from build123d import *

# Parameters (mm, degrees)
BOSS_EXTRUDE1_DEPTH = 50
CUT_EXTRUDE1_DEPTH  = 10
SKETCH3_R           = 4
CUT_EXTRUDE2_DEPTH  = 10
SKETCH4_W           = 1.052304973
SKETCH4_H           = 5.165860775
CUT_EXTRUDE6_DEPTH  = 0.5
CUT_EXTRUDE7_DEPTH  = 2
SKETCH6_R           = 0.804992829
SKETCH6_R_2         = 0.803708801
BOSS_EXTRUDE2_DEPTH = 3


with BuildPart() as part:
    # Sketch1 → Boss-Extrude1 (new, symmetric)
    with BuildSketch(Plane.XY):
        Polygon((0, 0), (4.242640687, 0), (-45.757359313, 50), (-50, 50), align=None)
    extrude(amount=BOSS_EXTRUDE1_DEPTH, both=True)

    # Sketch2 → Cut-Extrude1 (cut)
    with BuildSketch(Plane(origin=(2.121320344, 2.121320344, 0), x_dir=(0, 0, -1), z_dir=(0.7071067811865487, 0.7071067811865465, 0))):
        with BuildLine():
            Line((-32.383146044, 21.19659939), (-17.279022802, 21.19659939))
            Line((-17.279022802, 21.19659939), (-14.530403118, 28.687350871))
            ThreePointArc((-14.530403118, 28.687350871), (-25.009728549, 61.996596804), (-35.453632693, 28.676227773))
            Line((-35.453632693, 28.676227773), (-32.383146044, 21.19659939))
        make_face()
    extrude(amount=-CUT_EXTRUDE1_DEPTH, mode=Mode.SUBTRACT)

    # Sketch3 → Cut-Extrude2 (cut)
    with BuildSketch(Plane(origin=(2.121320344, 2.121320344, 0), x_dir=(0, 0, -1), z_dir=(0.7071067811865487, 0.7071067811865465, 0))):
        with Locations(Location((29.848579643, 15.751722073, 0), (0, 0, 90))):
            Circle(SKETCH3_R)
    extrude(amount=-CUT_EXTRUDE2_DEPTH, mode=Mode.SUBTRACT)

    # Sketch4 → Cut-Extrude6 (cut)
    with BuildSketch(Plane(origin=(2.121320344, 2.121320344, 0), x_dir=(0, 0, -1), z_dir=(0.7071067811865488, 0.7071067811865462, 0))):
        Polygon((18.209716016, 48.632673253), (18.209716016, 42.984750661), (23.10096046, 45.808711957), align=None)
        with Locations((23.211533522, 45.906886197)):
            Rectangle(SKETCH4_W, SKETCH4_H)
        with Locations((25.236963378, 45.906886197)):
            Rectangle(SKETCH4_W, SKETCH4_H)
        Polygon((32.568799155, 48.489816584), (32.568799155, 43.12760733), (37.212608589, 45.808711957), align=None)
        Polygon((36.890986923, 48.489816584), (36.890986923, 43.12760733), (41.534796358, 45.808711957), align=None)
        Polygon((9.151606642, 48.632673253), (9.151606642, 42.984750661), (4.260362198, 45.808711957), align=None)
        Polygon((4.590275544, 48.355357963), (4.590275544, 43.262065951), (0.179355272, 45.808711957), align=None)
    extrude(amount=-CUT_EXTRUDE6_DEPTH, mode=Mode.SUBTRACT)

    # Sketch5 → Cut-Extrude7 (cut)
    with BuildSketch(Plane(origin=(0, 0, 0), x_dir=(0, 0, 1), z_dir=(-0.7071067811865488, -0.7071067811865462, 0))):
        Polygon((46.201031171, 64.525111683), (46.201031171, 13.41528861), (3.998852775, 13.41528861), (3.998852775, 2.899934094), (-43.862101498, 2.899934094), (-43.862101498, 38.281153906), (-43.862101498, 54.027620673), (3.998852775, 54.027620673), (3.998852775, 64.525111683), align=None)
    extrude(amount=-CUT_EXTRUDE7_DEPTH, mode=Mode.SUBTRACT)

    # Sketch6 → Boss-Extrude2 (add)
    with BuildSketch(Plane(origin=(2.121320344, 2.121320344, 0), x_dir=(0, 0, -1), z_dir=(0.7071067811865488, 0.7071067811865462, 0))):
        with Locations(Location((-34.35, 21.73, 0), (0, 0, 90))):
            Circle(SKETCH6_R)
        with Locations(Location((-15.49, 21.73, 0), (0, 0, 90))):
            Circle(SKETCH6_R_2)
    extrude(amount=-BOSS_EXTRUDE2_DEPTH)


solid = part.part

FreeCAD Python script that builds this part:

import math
import FreeCAD as App
import Part
import Sketcher
from FreeCAD import Vector
Q = App.Units.Quantity

doc = App.newDocument("Part")
body = doc.addObject("PartDesign::Body", "Body")

sketch1 = doc.addObject("Sketcher::SketchObject", "Sketch")
body.addObject(sketch1)
sketch1.AttachmentSupport = (doc.XY_Plane, [""])
sketch1.MapMode = "FlatFace"
sketch1.addGeometry([
    Part.LineSegment(Vector(0, 0, 0), Vector(4.242641, 0, 0)),
    Part.LineSegment(Vector(4.242641, 0, 0), Vector(-45.757359, 50, 0)),
    Part.LineSegment(Vector(-45.757359, 50, 0), Vector(-50, 50, 0)),
    Part.LineSegment(Vector(-50, 50, 0), Vector(0, 0, 0)),
], False)
sketch1.addConstraint([
    Sketcher.Constraint("Coincident", 0, 2, 1, 1),
    Sketcher.Constraint("Coincident", 1, 2, 2, 1),
    Sketcher.Constraint("Coincident", 2, 2, 3, 1),
    Sketcher.Constraint("Coincident", 3, 2, 0, 1),
    Sketcher.Constraint("Horizontal", 0),
    Sketcher.Constraint("Horizontal", 2),
    Sketcher.Constraint("Coincident", 3, 2, -1, 1),
    Sketcher.Constraint("Parallel", 1, 3),
    Sketcher.Constraint("Angle", 1, Q("135 deg")),
    Sketcher.Constraint("DistanceY", -1, 1, 1, 2, Q("50 mm")),
    Sketcher.Constraint("DistanceX", 0, 1, 0, 2, Q("4.242641 mm")),
])
pad1 = doc.addObject("PartDesign::Pad", "Pad")
body.addObject(pad1)
pad1.Profile = sketch1
pad1.Length = 100
pad1.Midplane = True

sketch2 = doc.addObject("Sketcher::SketchObject", "Sketch001")
body.addObject(sketch2)
sketch2.Placement = App.Placement(Vector(2.12132, 2.12132, 0), App.Rotation(Vector(0, 0, -1), Vector(-0.707106781, 0.707106781, 0), Vector(0.707106781, 0.707106781, 0), "ZXY"))
sketch2.addGeometry([
    Part.LineSegment(Vector(-32.383146, 21.196599, 0), Vector(-17.279023, 21.196599, 0)),
    Part.LineSegment(Vector(-17.279023, 21.196599, 0), Vector(-14.530403, 28.687351, 0)),
    Part.ArcOfCircle(Part.Circle(Vector(-25, 43.696599, 0), Vector(0, 0, 1), 18.3), math.radians(-55.102568), math.radians(235.163486)),
    Part.LineSegment(Vector(-35.453633, 28.676228, 0), Vector(-32.383146, 21.196599, 0)),
], False)
sketch2.addConstraint([
    Sketcher.Constraint("Coincident", 0, 2, 1, 1),
    Sketcher.Constraint("Coincident", 1, 2, 2, 1),
    Sketcher.Constraint("Coincident", 2, 2, 3, 1),
    Sketcher.Constraint("Coincident", 3, 2, 0, 1),
    Sketcher.Constraint("Horizontal", 0),
    Sketcher.Constraint("Radius", 2, Q("18.3 mm")),
    Sketcher.Constraint("DistanceX", 2, 3, -1, 1, Q("25 mm")),
    Sketcher.Constraint("DistanceY", 0, 2, 2, 3, Q("22.5 mm")),
    Sketcher.Constraint("DistanceY", -1, 1, 2, 3, Q("43.696599 mm")),
    Sketcher.Constraint("Distance", 3, Q("8.08534 mm")),
    Sketcher.Constraint("DistanceX", 0, 1, 0, 2, Q("15.104123 mm")),
    Sketcher.Constraint("DistanceY", -1, 1, 1, 2, Q("28.687351 mm")),
    Sketcher.Constraint("DistanceX", 0, 2, 1, 2, Q("2.74862 mm")),
])
pocket1 = doc.addObject("PartDesign::Pocket", "Pocket")
body.addObject(pocket1)
pocket1.Profile = sketch2
pocket1.Length = 10

sketch3 = doc.addObject("Sketcher::SketchObject", "Sketch002")
body.addObject(sketch3)
sketch3.Placement = App.Placement(Vector(2.12132, 2.12132, 0), App.Rotation(Vector(0, 0, -1), Vector(-0.707106781, 0.707106781, 0), Vector(0.707106781, 0.707106781, 0), "ZXY"))
sketch3.addGeometry(Part.Circle(Vector(29.84858, 15.751722, 0), Vector(0, 0, 1), 4), False)
sketch3.addConstraint([
    Sketcher.Constraint("Diameter", 0, Q("8 mm")),
    Sketcher.Constraint("DistanceX", -1, 1, 0, 3, Q("29.84858 mm")),
    Sketcher.Constraint("DistanceY", -1, 1, 0, 3, Q("15.751722 mm")),
])
pocket2 = doc.addObject("PartDesign::Pocket", "Pocket001")
body.addObject(pocket2)
pocket2.Profile = sketch3
pocket2.Length = 10

sketch4 = doc.addObject("Sketcher::SketchObject", "Sketch003")
body.addObject(sketch4)
sketch4.Placement = App.Placement(Vector(2.12132, 2.12132, 0), App.Rotation(Vector(0, 0, -1), Vector(-0.707106781, 0.707106781, 0), Vector(0.707106781, 0.707106781, 0), "ZXY"))
sketch4.addGeometry([
    Part.LineSegment(Vector(22.685381, 46.048647, 0), Vector(18.209716, 48.632673, 0)),
    Part.LineSegment(Vector(18.209716, 48.632673, 0), Vector(18.209716, 42.984751, 0)),
    Part.LineSegment(Vector(18.209716, 42.984751, 0), Vector(22.685381, 45.568777, 0)),
    Part.LineSegment(Vector(22.685381, 45.568777, 0), Vector(22.685381, 43.323956, 0)),
    Part.LineSegment(Vector(22.685381, 43.323956, 0), Vector(23.737686, 43.323956, 0)),
    Part.LineSegment(Vector(23.737686, 43.323956, 0), Vector(23.737686, 48.489817, 0)),
    Part.LineSegment(Vector(23.737686, 48.489817, 0), Vector(22.685381, 48.489817, 0)),
    Part.LineSegment(Vector(22.685381, 48.489817, 0), Vector(22.685381, 46.048647, 0)),
    Part.LineSegment(Vector(24.710811, 48.489817, 0), Vector(24.710811, 43.323956, 0)),
    Part.LineSegment(Vector(24.710811, 43.323956, 0), Vector(25.763116, 43.323956, 0)),
    Part.LineSegment(Vector(25.763116, 43.323956, 0), Vector(25.763116, 48.489817, 0)),
    Part.LineSegment(Vector(25.763116, 48.489817, 0), Vector(24.710811, 48.489817, 0)),
    Part.LineSegment(Vector(36.890987, 45.9944, 0), Vector(32.568799, 48.489817, 0)),
    Part.LineSegment(Vector(32.568799, 48.489817, 0), Vector(32.568799, 43.127607, 0)),
    Part.LineSegment(Vector(32.568799, 43.127607, 0), Vector(36.890987, 45.623024, 0)),
    Part.LineSegment(Vector(36.890987, 45.623024, 0), Vector(36.890987, 43.127607, 0)),
    Part.LineSegment(Vector(36.890987, 43.127607, 0), Vector(41.534796, 45.808712, 0)),
    Part.LineSegment(Vector(41.534796, 45.808712, 0), Vector(36.890987, 48.489817, 0)),
    Part.LineSegment(Vector(36.890987, 48.489817, 0), Vector(36.890987, 45.9944, 0)),
    Part.LineSegment(Vector(9.151607, 48.632673, 0), Vector(4.590276, 45.999187, 0)),
    Part.LineSegment(Vector(4.590276, 45.999187, 0), Vector(4.590276, 48.355358, 0)),
    Part.LineSegment(Vector(4.590276, 48.355358, 0), Vector(0.179355, 45.808712, 0)),
    Part.LineSegment(Vector(0.179355, 45.808712, 0), Vector(4.590276, 43.262066, 0)),
    Part.LineSegment(Vector(4.590276, 43.262066, 0), Vector(4.590276, 45.618236, 0)),
    Part.LineSegment(Vector(4.590276, 45.618236, 0), Vector(9.151607, 42.984751, 0)),
    Part.LineSegment(Vector(9.151607, 42.984751, 0), Vector(9.151607, 48.632673, 0)),
], False)
sketch4.addConstraint([
    Sketcher.Constraint("Coincident", 0, 2, 1, 1),
    Sketcher.Constraint("Coincident", 1, 2, 2, 1),
    Sketcher.Constraint("Coincident", 2, 2, 3, 1),
    Sketcher.Constraint("Coincident", 3, 2, 4, 1),
    Sketcher.Constraint("Coincident", 4, 2, 5, 1),
    Sketcher.Constraint("Coincident", 5, 2, 6, 1),
    Sketcher.Constraint("Coincident", 6, 2, 7, 1),
    Sketcher.Constraint("Coincident", 7, 2, 0, 1),
    Sketcher.Constraint("Coincident", 8, 2, 9, 1),
    Sketcher.Constraint("Coincident", 9, 2, 10, 1),
    Sketcher.Constraint("Coincident", 10, 2, 11, 1),
    Sketcher.Constraint("Coincident", 11, 2, 8, 1),
    Sketcher.Constraint("Coincident", 12, 2, 13, 1),
    Sketcher.Constraint("Coincident", 13, 2, 14, 1),
    Sketcher.Constraint("Coincident", 14, 2, 15, 1),
    Sketcher.Constraint("Coincident", 15, 2, 16, 1),
    Sketcher.Constraint("Coincident", 16, 2, 17, 1),
    Sketcher.Constraint("Coincident", 17, 2, 18, 1),
    Sketcher.Constraint("Coincident", 18, 2, 12, 1),
    Sketcher.Constraint("Coincident", 19, 2, 20, 1),
    Sketcher.Constraint("Coincident", 20, 2, 21, 1),
    Sketcher.Constraint("Coincident", 21, 2, 22, 1),
    Sketcher.Constraint("Coincident", 22, 2, 23, 1),
    Sketcher.Constraint("Coincident", 23, 2, 24, 1),
    Sketcher.Constraint("Coincident", 24, 2, 25, 1),
    Sketcher.Constraint("Coincident", 25, 2, 19, 1),
    Sketcher.Constraint("Vertical", 1),
    Sketcher.Constraint("Vertical", 3),
    Sketcher.Constraint("Horizontal", 4),
    Sketcher.Constraint("Vertical", 5),
    Sketcher.Constraint("Horizontal", 6),
    Sketcher.Constraint("Vertical", 7),
    Sketcher.Constraint("Vertical", 8),
    Sketcher.Constraint("Horizontal", 9),
    Sketcher.Constraint("Vertical", 10),
    Sketcher.Constraint("Horizontal", 11),
    Sketcher.Constraint("Vertical", 13),
    Sketcher.Constraint("Vertical", 15),
    Sketcher.Constraint("Vertical", 18),
    Sketcher.Constraint("Vertical", 20),
    Sketcher.Constraint("Vertical", 23),
    Sketcher.Constraint("Vertical", 25),
    Sketcher.Constraint("Parallel", 0, 12),
    Sketcher.Constraint("Parallel", 2, 14),
    Sketcher.Constraint("Parallel", 14, 16),
    Sketcher.Constraint("Parallel", 12, 17),
    Sketcher.Constraint("Parallel", 16, 19),
    Sketcher.Constraint("Parallel", 19, 21),
    Sketcher.Constraint("Parallel", 17, 22),
    Sketcher.Constraint("Parallel", 22, 24),
    Sketcher.Constraint("Horizontal", 4, 2, 8, 2),
    Sketcher.Constraint("Horizontal", 6, 2, 10, 2),
    Sketcher.Constraint("Horizontal", 11, 2, 12, 2),
    Sketcher.Constraint("Horizontal", 13, 2, 15, 2),
    Sketcher.Constraint("Horizontal", 12, 2, 17, 2),
    Sketcher.Constraint("Horizontal", 16, 2, 21, 2),
    Sketcher.Constraint("Horizontal", 1, 2, 24, 2),
    Sketcher.Constraint("Horizontal", 0, 2, 25, 2),
    Sketcher.Constraint("Vertical", 3, 2, 6, 2),
    Sketcher.Constraint("Vertical", 15, 2, 17, 2),
    Sketcher.Constraint("Vertical", 20, 2, 22, 2),
    Sketcher.Constraint("Equal", 6, 9),
    Sketcher.Constraint("Equal", 15, 18),
    Sketcher.Constraint("Equal", 20, 23),
    Sketcher.Constraint("Angle", 0, Q("150 deg")),
    Sketcher.Constraint("DistanceY", 3, 2, 3, 1, Q("2.244821 mm")),
    Sketcher.Constraint("DistanceY", 5, 1, 5, 2, Q("5.165861 mm")),
    Sketcher.Constraint("DistanceY", 7, 2, 7, 1, Q("2.44117 mm")),
    Sketcher.Constraint("DistanceY", 20, 1, 20, 2, Q("2.35617 mm")),
    Sketcher.Constraint("DistanceX", -1, 1, 12, 2, Q("32.568799 mm")),
    Sketcher.Constraint("DistanceY", -1, 1, 18, 2, Q("45.9944 mm")),
    Sketcher.Constraint("Distance", 19, Q("5.266971 mm")),
    Sketcher.Constraint("DistanceX", 4, 1, 4, 2, Q("1.052305 mm")),
    Sketcher.Constraint("DistanceY", 1, 2, 1, 1, Q("5.647923 mm")),
    Sketcher.Constraint("DistanceY", 15, 2, 15, 1, Q("2.495416 mm")),
    Sketcher.Constraint("DistanceX", -1, 1, 2, 2, Q("22.685381 mm")),
    Sketcher.Constraint("DistanceX", -1, 1, 8, 2, Q("24.710811 mm")),
    Sketcher.Constraint("DistanceX", 19, 2, 0, 2, Q("13.61944 mm")),
])
pocket3 = doc.addObject("PartDesign::Pocket", "Pocket002")
body.addObject(pocket3)
pocket3.Profile = sketch4
pocket3.Length = 0.5

sketch5 = doc.addObject("Sketcher::SketchObject", "Sketch004")
body.addObject(sketch5)
sketch5.Placement = App.Placement(Vector(0, 0, 0), App.Rotation(Vector(0, 0, 1), Vector(-0.707106781, 0.707106781, 0), Vector(-0.707106781, -0.707106781, 0), "ZXY"))
sketch5.addGeometry([
    Part.LineSegment(Vector(46.201031, 13.415289, 0), Vector(46.201031, 64.525112, 0)),
    Part.LineSegment(Vector(46.201031, 64.525112, 0), Vector(3.998853, 64.525112, 0)),
    Part.LineSegment(Vector(3.998853, 64.525112, 0), Vector(3.998853, 54.027621, 0)),
    Part.LineSegment(Vector(3.998853, 54.027621, 0), Vector(-43.862101, 54.027621, 0)),
    Part.LineSegment(Vector(-43.862101, 54.027621, 0), Vector(-43.862101, 2.899934, 0)),
    Part.LineSegment(Vector(-43.862101, 2.899934, 0), Vector(3.998853, 2.899934, 0)),
    Part.LineSegment(Vector(3.998853, 2.899934, 0), Vector(3.998853, 13.415289, 0)),
    Part.LineSegment(Vector(3.998853, 13.415289, 0), Vector(46.201031, 13.415289, 0)),
], False)
sketch5.addConstraint([
    Sketcher.Constraint("Coincident", 0, 2, 1, 1),
    Sketcher.Constraint("Coincident", 1, 2, 2, 1),
    Sketcher.Constraint("Coincident", 2, 2, 3, 1),
    Sketcher.Constraint("Coincident", 3, 2, 4, 1),
    Sketcher.Constraint("Coincident", 4, 2, 5, 1),
    Sketcher.Constraint("Coincident", 5, 2, 6, 1),
    Sketcher.Constraint("Coincident", 6, 2, 7, 1),
    Sketcher.Constraint("Coincident", 7, 2, 0, 1),
    Sketcher.Constraint("Vertical", 0),
    Sketcher.Constraint("Horizontal", 1),
    Sketcher.Constraint("Vertical", 2),
    Sketcher.Constraint("Horizontal", 3),
    Sketcher.Constraint("Vertical", 4),
    Sketcher.Constraint("Horizontal", 5),
    Sketcher.Constraint("Vertical", 6),
    Sketcher.Constraint("Horizontal", 7),
    Sketcher.Constraint("Vertical", 2, 2, 5, 2),
    Sketcher.Constraint("DistanceX", 1, 2, 1, 1, Q("42.202178 mm")),
    Sketcher.Constraint("DistanceY", 2, 2, 2, 1, Q("10.497491 mm")),
    Sketcher.Constraint("DistanceX", 3, 2, -1, 1, Q("43.862101 mm")),
    Sketcher.Constraint("DistanceX", 3, 2, 3, 1, Q("47.860954 mm")),
    Sketcher.Constraint("DistanceY", 0, 1, 0, 2, Q("51.109823 mm")),
    Sketcher.Constraint("DistanceY", 4, 2, 4, 1, Q("51.127687 mm")),
    Sketcher.Constraint("DistanceY", -1, 1, 0, 2, Q("64.525112 mm")),
])
pocket4 = doc.addObject("PartDesign::Pocket", "Pocket003")
body.addObject(pocket4)
pocket4.Profile = sketch5
pocket4.Length = 2

sketch6 = doc.addObject("Sketcher::SketchObject", "Sketch005")
body.addObject(sketch6)
sketch6.Placement = App.Placement(Vector(2.12132, 2.12132, 0), App.Rotation(Vector(0, 0, -1), Vector(-0.707106781, 0.707106781, 0), Vector(0.707106781, 0.707106781, 0), "ZXY"))
sketch6.addGeometry([
    Part.Circle(Vector(-34.35, 21.73, 0), Vector(0, 0, 1), 0.804993),
    Part.Circle(Vector(-15.49, 21.73, 0), Vector(0, 0, 1), 0.803709),
], False)
sketch6.addConstraint([
    Sketcher.Constraint("Horizontal", 0, 3, 1, 3),
    Sketcher.Constraint("DistanceX", 0, 3, -1, 1, Q("34.35 mm")),
    Sketcher.Constraint("DistanceY", -1, 1, 0, 3, Q("21.73 mm")),
    Sketcher.Constraint("DistanceX", 1, 3, -1, 1, Q("15.49 mm")),
    Sketcher.Constraint("Diameter", 0, Q("1.609986 mm")),
    Sketcher.Constraint("Diameter", 1, Q("1.607418 mm")),
])
pad2 = doc.addObject("PartDesign::Pad", "Pad001")
body.addObject(pad2)
pad2.Profile = sketch6
pad2.Length = 3
pad2.Reversed = True

doc.recompute()
